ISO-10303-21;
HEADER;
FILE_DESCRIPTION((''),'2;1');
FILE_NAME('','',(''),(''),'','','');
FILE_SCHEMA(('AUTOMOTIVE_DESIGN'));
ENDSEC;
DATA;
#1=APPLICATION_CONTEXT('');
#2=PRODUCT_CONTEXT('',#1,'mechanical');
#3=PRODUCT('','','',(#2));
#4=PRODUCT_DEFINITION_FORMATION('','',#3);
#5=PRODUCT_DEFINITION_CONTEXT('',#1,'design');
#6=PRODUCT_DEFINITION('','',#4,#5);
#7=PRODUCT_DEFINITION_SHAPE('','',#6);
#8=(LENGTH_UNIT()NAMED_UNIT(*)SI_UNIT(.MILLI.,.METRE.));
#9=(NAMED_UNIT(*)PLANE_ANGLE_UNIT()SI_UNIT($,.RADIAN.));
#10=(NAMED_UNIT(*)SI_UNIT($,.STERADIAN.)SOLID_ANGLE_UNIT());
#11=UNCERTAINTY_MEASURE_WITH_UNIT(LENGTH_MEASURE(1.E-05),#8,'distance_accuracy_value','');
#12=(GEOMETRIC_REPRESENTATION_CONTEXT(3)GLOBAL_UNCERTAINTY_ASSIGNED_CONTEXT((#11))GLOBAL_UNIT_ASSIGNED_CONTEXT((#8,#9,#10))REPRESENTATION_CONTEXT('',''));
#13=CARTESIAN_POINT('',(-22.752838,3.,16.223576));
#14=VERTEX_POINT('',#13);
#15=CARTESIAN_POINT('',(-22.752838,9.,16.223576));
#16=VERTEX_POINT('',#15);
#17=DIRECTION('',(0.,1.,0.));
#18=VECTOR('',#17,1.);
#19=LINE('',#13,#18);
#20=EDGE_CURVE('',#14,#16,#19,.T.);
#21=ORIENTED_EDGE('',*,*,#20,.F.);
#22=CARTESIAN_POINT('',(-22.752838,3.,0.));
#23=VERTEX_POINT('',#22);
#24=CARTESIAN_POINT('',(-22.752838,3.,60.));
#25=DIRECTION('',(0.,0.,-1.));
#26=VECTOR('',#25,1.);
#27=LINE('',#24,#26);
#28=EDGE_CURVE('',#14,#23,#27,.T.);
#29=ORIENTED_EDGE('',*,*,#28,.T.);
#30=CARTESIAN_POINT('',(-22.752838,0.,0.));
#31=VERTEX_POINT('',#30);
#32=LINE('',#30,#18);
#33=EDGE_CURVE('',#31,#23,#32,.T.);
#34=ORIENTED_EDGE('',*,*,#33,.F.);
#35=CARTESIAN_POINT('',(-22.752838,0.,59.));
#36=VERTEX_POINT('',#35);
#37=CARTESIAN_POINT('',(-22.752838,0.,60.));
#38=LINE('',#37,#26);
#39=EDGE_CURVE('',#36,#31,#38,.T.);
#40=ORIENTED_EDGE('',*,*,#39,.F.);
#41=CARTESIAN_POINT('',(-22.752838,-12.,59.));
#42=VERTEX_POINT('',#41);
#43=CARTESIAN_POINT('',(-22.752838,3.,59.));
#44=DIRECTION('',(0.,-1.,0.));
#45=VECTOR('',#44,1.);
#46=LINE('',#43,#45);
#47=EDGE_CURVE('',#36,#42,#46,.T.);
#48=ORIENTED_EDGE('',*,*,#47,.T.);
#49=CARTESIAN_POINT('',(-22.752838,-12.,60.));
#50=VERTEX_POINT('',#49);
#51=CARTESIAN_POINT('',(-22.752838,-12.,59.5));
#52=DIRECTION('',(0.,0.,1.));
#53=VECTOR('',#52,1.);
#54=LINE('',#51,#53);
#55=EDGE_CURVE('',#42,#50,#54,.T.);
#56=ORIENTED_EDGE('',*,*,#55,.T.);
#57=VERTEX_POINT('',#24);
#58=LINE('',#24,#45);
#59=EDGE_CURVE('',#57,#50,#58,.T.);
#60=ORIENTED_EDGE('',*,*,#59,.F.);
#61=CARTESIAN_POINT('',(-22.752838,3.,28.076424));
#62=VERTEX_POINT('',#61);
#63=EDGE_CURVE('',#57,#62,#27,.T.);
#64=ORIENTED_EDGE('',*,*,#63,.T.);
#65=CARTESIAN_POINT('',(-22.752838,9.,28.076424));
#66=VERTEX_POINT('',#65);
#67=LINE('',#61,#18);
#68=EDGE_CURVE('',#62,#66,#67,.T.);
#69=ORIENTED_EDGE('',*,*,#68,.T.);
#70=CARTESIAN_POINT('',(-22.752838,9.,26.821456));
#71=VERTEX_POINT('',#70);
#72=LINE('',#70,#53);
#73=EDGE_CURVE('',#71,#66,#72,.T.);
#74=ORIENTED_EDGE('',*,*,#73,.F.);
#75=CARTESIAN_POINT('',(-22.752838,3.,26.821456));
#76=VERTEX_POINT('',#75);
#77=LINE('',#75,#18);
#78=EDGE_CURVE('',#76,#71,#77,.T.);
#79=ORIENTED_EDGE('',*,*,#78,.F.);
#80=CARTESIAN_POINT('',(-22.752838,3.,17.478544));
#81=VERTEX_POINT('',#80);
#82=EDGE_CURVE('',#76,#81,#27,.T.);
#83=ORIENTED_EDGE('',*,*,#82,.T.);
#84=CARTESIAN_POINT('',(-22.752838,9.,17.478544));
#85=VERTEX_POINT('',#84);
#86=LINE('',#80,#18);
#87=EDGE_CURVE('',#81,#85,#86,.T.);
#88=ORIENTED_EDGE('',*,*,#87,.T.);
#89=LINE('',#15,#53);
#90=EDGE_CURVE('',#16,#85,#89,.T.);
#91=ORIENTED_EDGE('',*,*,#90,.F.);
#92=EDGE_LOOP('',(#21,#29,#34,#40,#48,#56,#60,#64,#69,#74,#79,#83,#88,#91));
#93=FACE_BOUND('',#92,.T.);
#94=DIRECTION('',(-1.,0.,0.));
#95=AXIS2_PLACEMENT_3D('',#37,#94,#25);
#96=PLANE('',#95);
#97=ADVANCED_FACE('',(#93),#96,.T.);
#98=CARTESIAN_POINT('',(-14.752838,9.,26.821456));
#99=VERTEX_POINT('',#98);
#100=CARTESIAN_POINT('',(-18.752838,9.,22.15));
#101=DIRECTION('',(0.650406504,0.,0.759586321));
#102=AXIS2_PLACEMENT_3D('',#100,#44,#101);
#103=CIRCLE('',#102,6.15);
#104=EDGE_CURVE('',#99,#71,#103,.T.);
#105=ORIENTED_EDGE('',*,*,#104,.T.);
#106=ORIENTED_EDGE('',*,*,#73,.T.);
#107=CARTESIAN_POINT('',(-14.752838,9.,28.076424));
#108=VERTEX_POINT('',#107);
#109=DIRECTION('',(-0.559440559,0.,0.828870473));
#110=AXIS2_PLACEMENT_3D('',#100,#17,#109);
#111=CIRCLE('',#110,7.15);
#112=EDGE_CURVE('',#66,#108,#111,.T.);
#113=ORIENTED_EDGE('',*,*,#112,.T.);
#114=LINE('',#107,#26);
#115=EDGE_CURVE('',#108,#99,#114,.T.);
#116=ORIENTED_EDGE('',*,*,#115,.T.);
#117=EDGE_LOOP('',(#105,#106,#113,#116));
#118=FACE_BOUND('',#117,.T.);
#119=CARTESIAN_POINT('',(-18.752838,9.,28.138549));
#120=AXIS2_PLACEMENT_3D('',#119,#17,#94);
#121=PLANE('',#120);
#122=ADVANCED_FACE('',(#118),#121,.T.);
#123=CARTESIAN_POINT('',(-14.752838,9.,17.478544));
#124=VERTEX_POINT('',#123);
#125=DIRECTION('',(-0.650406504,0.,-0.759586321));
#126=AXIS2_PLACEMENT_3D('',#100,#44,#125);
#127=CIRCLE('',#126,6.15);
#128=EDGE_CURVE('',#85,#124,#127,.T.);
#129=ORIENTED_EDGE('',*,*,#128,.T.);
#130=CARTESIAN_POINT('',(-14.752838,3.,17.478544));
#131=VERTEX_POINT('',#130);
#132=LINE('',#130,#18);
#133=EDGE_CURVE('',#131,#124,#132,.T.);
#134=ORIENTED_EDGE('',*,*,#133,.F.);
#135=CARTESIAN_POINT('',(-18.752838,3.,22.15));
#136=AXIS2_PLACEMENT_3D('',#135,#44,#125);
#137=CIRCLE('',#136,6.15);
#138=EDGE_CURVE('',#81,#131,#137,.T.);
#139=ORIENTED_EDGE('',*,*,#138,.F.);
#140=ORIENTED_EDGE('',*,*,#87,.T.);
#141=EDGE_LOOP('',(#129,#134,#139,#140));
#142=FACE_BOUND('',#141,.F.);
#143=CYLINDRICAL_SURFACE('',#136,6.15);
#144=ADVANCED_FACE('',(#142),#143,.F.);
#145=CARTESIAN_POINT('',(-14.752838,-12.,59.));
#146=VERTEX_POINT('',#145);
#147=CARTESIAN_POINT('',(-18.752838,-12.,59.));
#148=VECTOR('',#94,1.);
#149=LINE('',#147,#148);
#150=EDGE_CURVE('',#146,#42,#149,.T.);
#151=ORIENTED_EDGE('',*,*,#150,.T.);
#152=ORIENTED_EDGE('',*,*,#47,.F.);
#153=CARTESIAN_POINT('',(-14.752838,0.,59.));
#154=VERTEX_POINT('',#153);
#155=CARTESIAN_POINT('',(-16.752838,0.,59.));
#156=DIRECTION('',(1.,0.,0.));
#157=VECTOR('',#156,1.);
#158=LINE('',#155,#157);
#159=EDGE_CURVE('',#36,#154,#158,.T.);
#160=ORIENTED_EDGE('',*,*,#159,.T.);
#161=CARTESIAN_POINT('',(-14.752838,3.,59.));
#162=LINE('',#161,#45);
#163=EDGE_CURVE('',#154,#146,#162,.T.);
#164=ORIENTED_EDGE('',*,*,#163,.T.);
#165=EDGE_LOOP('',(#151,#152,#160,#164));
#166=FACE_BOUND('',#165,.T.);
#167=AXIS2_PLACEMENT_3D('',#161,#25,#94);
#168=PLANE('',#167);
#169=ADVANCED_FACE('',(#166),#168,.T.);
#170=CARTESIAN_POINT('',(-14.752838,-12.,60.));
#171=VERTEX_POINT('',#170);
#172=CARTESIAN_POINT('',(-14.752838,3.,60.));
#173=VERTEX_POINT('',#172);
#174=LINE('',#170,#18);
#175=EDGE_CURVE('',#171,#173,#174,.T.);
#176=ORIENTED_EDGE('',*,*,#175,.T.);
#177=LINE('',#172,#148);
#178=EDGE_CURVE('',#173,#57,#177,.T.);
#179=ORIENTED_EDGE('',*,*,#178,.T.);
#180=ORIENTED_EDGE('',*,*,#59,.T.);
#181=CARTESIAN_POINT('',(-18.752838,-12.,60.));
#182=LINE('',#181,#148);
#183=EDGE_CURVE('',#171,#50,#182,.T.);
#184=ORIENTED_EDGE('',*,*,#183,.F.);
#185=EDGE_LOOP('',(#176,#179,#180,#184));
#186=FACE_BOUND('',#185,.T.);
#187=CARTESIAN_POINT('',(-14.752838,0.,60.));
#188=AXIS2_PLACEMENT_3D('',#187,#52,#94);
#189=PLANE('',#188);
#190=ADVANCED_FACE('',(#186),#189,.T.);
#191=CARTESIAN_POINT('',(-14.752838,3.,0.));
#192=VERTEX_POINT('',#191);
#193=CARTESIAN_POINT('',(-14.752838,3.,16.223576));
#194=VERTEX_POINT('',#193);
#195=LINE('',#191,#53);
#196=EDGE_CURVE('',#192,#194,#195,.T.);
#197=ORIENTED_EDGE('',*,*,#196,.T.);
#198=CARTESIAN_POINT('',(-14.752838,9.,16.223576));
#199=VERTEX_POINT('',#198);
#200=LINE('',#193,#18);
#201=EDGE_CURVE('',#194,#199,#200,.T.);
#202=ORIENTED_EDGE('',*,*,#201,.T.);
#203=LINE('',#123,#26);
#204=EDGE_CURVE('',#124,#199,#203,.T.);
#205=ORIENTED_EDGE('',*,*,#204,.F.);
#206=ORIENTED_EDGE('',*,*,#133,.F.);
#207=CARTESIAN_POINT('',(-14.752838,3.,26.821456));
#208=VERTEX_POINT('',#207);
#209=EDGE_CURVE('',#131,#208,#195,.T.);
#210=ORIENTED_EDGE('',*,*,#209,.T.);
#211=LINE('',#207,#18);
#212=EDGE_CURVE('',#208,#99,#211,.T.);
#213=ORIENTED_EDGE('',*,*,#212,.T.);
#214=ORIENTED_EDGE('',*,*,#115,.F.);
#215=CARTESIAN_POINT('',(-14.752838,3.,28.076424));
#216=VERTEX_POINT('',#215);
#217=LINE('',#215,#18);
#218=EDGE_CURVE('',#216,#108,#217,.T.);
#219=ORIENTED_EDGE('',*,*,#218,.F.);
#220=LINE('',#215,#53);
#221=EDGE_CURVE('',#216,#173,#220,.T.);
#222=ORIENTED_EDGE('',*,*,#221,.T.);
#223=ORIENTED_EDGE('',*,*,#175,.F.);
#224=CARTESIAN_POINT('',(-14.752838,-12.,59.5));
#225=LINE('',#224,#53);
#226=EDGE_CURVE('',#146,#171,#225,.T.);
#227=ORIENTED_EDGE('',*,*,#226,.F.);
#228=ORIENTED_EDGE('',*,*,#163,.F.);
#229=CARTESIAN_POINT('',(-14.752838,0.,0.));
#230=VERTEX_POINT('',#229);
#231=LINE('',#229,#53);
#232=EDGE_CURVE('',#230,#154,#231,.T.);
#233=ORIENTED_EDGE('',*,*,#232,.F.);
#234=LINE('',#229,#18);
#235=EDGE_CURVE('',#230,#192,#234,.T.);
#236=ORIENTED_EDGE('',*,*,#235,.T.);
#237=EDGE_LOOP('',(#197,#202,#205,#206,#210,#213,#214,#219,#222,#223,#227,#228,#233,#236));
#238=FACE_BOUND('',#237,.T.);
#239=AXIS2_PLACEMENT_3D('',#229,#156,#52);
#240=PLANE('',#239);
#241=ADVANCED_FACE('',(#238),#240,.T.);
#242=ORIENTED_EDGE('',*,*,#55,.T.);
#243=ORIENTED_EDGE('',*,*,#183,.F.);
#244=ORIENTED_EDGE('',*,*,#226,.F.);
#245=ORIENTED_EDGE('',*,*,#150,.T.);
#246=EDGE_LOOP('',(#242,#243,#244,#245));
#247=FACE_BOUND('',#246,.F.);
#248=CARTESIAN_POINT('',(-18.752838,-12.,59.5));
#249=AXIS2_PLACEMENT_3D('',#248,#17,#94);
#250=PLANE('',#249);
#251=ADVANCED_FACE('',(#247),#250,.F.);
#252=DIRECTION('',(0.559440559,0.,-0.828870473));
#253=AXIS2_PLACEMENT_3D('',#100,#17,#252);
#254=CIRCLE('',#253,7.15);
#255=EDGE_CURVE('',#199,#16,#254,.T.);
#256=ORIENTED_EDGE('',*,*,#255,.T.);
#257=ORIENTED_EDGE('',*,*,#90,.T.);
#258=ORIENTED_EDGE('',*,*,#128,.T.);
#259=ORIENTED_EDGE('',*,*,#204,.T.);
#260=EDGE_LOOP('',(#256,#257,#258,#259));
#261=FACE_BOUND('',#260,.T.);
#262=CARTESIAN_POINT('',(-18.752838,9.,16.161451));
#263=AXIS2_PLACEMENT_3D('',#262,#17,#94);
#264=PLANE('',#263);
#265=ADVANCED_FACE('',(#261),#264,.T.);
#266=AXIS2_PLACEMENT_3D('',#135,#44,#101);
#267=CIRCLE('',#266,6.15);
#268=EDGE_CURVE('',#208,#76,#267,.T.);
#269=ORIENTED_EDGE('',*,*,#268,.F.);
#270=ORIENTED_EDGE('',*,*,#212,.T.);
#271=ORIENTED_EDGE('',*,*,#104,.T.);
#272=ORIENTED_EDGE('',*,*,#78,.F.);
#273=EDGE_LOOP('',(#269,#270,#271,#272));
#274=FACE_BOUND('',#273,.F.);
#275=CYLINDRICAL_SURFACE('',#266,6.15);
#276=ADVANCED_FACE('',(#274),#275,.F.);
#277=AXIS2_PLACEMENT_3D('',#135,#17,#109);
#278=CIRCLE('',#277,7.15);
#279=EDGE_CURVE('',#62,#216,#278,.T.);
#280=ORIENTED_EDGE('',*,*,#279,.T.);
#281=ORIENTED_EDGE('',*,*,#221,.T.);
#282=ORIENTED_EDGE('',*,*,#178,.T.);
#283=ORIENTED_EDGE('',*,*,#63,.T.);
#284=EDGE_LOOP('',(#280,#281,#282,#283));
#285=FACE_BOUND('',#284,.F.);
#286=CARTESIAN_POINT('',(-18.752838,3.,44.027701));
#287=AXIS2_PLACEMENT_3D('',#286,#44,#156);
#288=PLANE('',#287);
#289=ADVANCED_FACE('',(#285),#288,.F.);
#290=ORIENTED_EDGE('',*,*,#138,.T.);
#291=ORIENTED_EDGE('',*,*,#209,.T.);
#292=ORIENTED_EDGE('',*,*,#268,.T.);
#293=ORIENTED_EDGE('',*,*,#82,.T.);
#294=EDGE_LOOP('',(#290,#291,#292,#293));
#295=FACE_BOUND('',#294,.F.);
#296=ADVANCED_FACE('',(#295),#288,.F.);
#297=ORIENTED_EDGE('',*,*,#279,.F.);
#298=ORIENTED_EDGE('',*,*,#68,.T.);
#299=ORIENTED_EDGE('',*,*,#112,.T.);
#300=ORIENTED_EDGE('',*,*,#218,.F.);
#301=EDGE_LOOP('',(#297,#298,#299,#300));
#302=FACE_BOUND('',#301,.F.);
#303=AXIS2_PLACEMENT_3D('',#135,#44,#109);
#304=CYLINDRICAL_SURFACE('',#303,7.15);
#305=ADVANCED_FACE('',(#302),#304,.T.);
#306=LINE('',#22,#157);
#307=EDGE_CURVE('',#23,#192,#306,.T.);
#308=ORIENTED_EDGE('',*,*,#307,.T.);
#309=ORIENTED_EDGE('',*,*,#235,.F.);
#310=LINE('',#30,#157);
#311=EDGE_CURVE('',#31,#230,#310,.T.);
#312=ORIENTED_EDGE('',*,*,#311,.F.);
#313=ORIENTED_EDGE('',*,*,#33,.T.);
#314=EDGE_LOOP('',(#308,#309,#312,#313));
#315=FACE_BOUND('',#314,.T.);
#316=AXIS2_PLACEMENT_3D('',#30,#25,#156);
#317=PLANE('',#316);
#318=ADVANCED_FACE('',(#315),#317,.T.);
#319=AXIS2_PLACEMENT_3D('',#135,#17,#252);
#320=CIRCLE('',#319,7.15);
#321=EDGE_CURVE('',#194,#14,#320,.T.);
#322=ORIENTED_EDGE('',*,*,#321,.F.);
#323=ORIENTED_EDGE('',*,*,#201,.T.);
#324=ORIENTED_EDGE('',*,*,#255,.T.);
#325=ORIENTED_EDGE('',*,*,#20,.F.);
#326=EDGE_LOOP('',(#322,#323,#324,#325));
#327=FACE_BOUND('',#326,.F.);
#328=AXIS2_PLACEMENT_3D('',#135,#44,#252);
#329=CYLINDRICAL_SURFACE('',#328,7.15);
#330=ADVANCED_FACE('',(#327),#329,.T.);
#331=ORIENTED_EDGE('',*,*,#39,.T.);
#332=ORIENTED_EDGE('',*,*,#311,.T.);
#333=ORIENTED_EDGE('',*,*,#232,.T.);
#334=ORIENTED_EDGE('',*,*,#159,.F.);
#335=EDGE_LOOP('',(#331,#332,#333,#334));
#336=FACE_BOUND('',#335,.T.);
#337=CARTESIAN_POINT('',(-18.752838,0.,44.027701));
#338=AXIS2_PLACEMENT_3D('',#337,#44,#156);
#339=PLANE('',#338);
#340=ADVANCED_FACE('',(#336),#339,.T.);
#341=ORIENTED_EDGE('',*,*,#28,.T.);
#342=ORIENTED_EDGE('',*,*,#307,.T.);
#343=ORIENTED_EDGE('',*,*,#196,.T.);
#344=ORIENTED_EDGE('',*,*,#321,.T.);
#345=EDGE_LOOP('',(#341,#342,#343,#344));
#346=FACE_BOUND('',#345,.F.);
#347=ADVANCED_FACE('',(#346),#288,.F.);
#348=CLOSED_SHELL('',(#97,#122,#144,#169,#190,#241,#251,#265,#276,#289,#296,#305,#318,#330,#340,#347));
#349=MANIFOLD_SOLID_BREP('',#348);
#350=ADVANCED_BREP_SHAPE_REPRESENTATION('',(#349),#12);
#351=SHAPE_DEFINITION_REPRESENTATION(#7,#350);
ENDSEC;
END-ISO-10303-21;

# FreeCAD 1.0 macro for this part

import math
import FreeCAD as App
import Part
import Sketcher
from FreeCAD import Vector
Q = App.Units.Quantity

doc = App.newDocument("Part")
params = doc.addObject("Spreadsheet::Sheet", "Params")
for row, (alias, value) in enumerate([
    ("sketch1_width", "8 mm"),
    ("sketch1_height", "60 mm"),
    ("pad1_length", "3 mm"),
    ("sketch2_radius", "7.15 mm"),
    ("sketch2_radius2", "6.15 mm"),
    ("sketch2_width", "4 mm"),
    ("pad2_length", "6 mm"),
    ("sketch3_width", "8 mm"),
    ("sketch3_height", "1 mm"),
    ("pad3_length", "15 mm"),
], start=1):
    params.set(f"A{row}", alias)
    params.set(f"B{row}", "=" + value)
    params.setAlias(f"B{row}", alias)

body = doc.addObject("PartDesign::Body", "Body")

# Sketch on XZ plane
sketch1 = doc.addObject("Sketcher::SketchObject", "Sketch")
body.addObject(sketch1)
sketch1.AttachmentSupport = (doc.XZ_Plane, [""])
sketch1.MapMode = "FlatFace"
sketch1.addGeometry([
    Part.LineSegment(Vector(-15, 60, 0), Vector(-23, 60, 0)),
    Part.LineSegment(Vector(-23, 60, 0), Vector(-23, 0, 0)),
    Part.LineSegment(Vector(-23, 0, 0), Vector(-15, 0, 0)),
    Part.LineSegment(Vector(-15, 0, 0), Vector(-15, 60, 0)),
], False)
sketch1.addConstraint([
    Sketcher.Constraint("Coincident", 0, 2, 1, 1),
    Sketcher.Constraint("Coincident", 1, 2, 2, 1),
    Sketcher.Constraint("Coincident", 2, 2, 3, 1),
    Sketcher.Constraint("Coincident", 3, 2, 0, 1),
    Sketcher.Constraint("Horizontal", 0),
    Sketcher.Constraint("Vertical", 1),
    Sketcher.Constraint("Horizontal", 2),
    Sketcher.Constraint("Vertical", 3),
    Sketcher.Constraint("PointOnObject", 1, 2, -1),
    Sketcher.Constraint("DistanceX", 0, 2, 0, 1, Q("8 mm")),
    Sketcher.Constraint("DistanceY", 1, 2, 1, 1, Q("60 mm")),
    Sketcher.Constraint("DistanceX", 0, 2, -1, 1, Q("22.752838 mm")),
])
sketch1.setExpression("Constraints[9]", "Params.sketch1_width")
sketch1.setExpression("Constraints[10]", "Params.sketch1_height")
pad1 = doc.addObject("PartDesign::Pad", "Pad")
body.addObject(pad1)
pad1.Profile = sketch1
pad1.setExpression("Length", "Params.pad1_length")
pad1.Reversed = True

# Sketch on XZ plane
sketch2 = doc.addObject("Sketcher::SketchObject", "Sketch001")
body.addObject(sketch2)
sketch2.AttachmentSupport = (doc.XZ_Plane, [""])
sketch2.MapMode = "FlatFace"
sketch2.AttachmentOffset = App.Placement(Vector(0, 0, -3), App.Rotation())
sketch2.addGeometry([
    Part.ArcOfCircle(Part.Circle(Vector(-18.8, 22.1, 0), Vector(0, 0, 1), 7.2), math.radians(56), math.radians(124)),  # 0
    Part.LineSegment(Vector(-14.8, 28.1, 0), Vector(-14.8, 26.8, 0)),  # 1
    Part.ArcOfCircle(Part.Circle(Vector(-18.8, 22.1, 0), Vector(0, 0, 1), 6.2), math.radians(49), math.radians(131)),  # 2
    Part.LineSegment(Vector(-22.8, 26.8, 0), Vector(-22.8, 28.1, 0)),  # 3
    Part.LineSegment(Vector(-14.8, 17.5, 0), Vector(-14.8, 16.2, 0)),  # 4
    Part.ArcOfCircle(Part.Circle(Vector(-18.8, 22.1, 0), Vector(0, 0, 1), 7.2), math.radians(-124), math.radians(-56)),  # 5
    Part.LineSegment(Vector(-22.8, 16.2, 0), Vector(-22.8, 17.5, 0)),  # 6
    Part.ArcOfCircle(Part.Circle(Vector(-18.8, 22.1, 0), Vector(0, 0, 1), 6.2), math.radians(-131), math.radians(-49)),  # 7
], False)
sketch2.addConstraint([
    Sketcher.Constraint("Coincident", 0, 1, 1, 1),
    Sketcher.Constraint("Coincident", 1, 2, 2, 1),
    Sketcher.Constraint("Coincident", 2, 2, 3, 1),
    Sketcher.Constraint("Coincident", 3, 2, 0, 2),
    Sketcher.Constraint("Coincident", 4, 2, 5, 2),
    Sketcher.Constraint("Coincident", 5, 1, 6, 1),
    Sketcher.Constraint("Coincident", 6, 2, 7, 1),
    Sketcher.Constraint("Coincident", 7, 2, 4, 1),
    Sketcher.Constraint("Vertical", 1),
    Sketcher.Constraint("Vertical", 3),
    Sketcher.Constraint("Vertical", 4),
    Sketcher.Constraint("Vertical", 6),
    Sketcher.Constraint("Coincident", 2, 3, 0, 3),
    Sketcher.Constraint("Coincident", 5, 3, 0, 3),
    Sketcher.Constraint("Coincident", 7, 3, 0, 3),
    Sketcher.Constraint("Equal", 0, 5),
    Sketcher.Constraint("Equal", 2, 7),
    Sketcher.Constraint("Horizontal", 1, 2, 2, 2),
    Sketcher.Constraint("Horizontal", 4, 2, 5, 1),
    Sketcher.Constraint("Vertical", 1, 2, 4, 2),
    Sketcher.Constraint("Radius", 0, Q("7.15 mm")),
    Sketcher.Constraint("Radius", 2, Q("6.15 mm")),
    Sketcher.Constraint("DistanceX", 0, 3, 0, 1, Q("4 mm")),
    Sketcher.Constraint("DistanceY", -1, 1, 0, 3, Q("22.15 mm")),
    Sketcher.Constraint("DistanceX", 0, 3, -1, 1, Q("18.752838 mm")),
])
sketch2.setExpression("Constraints[20]", "Params.sketch2_radius")
sketch2.setExpression("Constraints[21]", "Params.sketch2_radius2")
sketch2.setExpression("Constraints[22]", "Params.sketch2_width")
pad2 = doc.addObject("PartDesign::Pad", "Pad001")
body.addObject(pad2)
pad2.Profile = sketch2
pad2.setExpression("Length", "Params.pad2_length")
pad2.Reversed = True

# Sketch on XZ plane
sketch3 = doc.addObject("Sketcher::SketchObject", "Sketch002")
body.addObject(sketch3)
sketch3.AttachmentSupport = (doc.XZ_Plane, [""])
sketch3.MapMode = "FlatFace"
sketch3.AttachmentOffset = App.Placement(Vector(0, 0, -3), App.Rotation())
sketch3.addGeometry([
    Part.LineSegment(Vector(-14.8, 60, 0), Vector(-14.8, 59, 0)),
    Part.LineSegment(Vector(-14.8, 59, 0), Vector(-22.8, 59, 0)),
    Part.LineSegment(Vector(-22.8, 59, 0), Vector(-22.8, 60, 0)),
    Part.LineSegment(Vector(-22.8, 60, 0), Vector(-14.8, 60, 0)),
], False)
sketch3.addConstraint([
    Sketcher.Constraint("Coincident", 0, 2, 1, 1),
    Sketcher.Constraint("Coincident", 1, 2, 2, 1),
    Sketcher.Constraint("Coincident", 2, 2, 3, 1),
    Sketcher.Constraint("Coincident", 3, 2, 0, 1),
    Sketcher.Constraint("Vertical", 0),
    Sketcher.Constraint("Horizontal", 1),
    Sketcher.Constraint("Vertical", 2),
    Sketcher.Constraint("Horizontal", 3),
    Sketcher.Constraint("DistanceX", 1, 2, 1, 1, Q("8 mm")),
    Sketcher.Constraint("DistanceY", 0, 2, 0, 1, Q("1 mm")),
    Sketcher.Constraint("DistanceY", -1, 1, 0, 2, Q("59 mm")),
    Sketcher.Constraint("DistanceX", 0, 2, -1, 1, Q("14.752838 mm")),
])
sketch3.setExpression("Constraints[8]", "Params.sketch3_width")
sketch3.setExpression("Constraints[9]", "Params.sketch3_height")
pad3 = doc.addObject("PartDesign::Pad", "Pad002")
body.addObject(pad3)
pad3.Profile = sketch3
pad3.setExpression("Length", "Params.pad3_length")

doc.recompute()
